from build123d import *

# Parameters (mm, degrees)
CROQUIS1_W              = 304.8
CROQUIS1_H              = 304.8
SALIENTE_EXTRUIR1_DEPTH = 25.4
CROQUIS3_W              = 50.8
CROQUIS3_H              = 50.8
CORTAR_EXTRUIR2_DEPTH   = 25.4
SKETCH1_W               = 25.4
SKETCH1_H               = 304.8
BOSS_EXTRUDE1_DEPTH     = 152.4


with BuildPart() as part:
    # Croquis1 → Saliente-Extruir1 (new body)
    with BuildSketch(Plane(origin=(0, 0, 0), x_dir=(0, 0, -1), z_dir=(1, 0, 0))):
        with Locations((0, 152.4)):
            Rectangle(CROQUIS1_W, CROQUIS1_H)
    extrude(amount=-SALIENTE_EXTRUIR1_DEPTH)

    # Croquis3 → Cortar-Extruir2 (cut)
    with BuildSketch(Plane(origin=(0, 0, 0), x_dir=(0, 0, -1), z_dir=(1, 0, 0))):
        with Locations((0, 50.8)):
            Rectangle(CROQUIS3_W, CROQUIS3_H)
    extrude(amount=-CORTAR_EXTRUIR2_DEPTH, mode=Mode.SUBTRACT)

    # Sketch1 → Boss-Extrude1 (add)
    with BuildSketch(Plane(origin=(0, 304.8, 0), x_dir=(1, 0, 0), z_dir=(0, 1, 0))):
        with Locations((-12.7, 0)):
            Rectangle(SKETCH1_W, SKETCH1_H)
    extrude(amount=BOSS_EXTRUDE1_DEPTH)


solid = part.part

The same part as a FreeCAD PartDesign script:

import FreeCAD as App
import Part
import Sketcher
from FreeCAD import Vector
Q = App.Units.Quantity

doc = App.newDocument("Part")
body = doc.addObject("PartDesign::Body", "Body")

sketch1 = doc.addObject("Sketcher::SketchObject", "Sketch")
body.addObject(sketch1)
sketch1.AttachmentSupport = (doc.YZ_Plane, [""])
sketch1.MapMode = "FlatFace"
sketch1.addGeometry(Part.LineSegment(Vector(305, 152, 0), Vector(0, 152, 0)), False)
sketch1.addGeometry(Part.LineSegment(Vector(0, 152, 0), Vector(0, -152, 0)), False)
sketch1.addGeometry(Part.LineSegment(Vector(0, -152, 0), Vector(305, -152, 0)), False)
sketch1.addGeometry(Part.LineSegment(Vector(305, -152, 0), Vector(305, 152, 0)), False)
sketch1.addConstraint(Sketcher.Constraint("Coincident", 0, 2, 1, 1))
sketch1.addConstraint(Sketcher.Constraint("Coincident", 1, 2, 2, 1))
sketch1.addConstraint(Sketcher.Constraint("Coincident", 2, 2, 3, 1))
sketch1.addConstraint(Sketcher.Constraint("Coincident", 3, 2, 0, 1))
sketch1.addConstraint(Sketcher.Constraint("Horizontal", 0))
sketch1.addConstraint(Sketcher.Constraint("Vertical", 1))
sketch1.addConstraint(Sketcher.Constraint("Horizontal", 2))
sketch1.addConstraint(Sketcher.Constraint("Vertical", 3))
sketch1.addConstraint(Sketcher.Constraint("Symmetric", 0, 2, 1, 2, -1, 1))
sketch1.addConstraint(Sketcher.Constraint("Equal", 2, 1))
sketch1.addConstraint(Sketcher.Constraint("DistanceX", 0, 2, 0, 1, Q("12 in")))
pad1 = doc.addObject("PartDesign::Pad", "Pad")
body.addObject(pad1)
pad1.Profile = sketch1
pad1.Length = Q("1 in")
pad1.Reversed = True

sketch2 = doc.addObject("Sketcher::SketchObject", "Sketch001")
body.addObject(sketch2)
sketch2.AttachmentSupport = (doc.YZ_Plane, [""])
sketch2.MapMode = "FlatFace"
sketch2.addGeometry(Part.LineSegment(Vector(76, 25, 0), Vector(25, 25, 0)), False)
sketch2.addGeometry(Part.LineSegment(Vector(25, 25, 0), Vector(25, -25, 0)), False)
sketch2.addGeometry(Part.LineSegment(Vector(25, -25, 0), Vector(76, -25, 0)), False)
sketch2.addGeometry(Part.LineSegment(Vector(76, -25, 0), Vector(76, 25, 0)), False)
sketch2.addConstraint(Sketcher.Constraint("Coincident", 0, 2, 1, 1))
sketch2.addConstraint(Sketcher.Constraint("Coincident", 1, 2, 2, 1))
sketch2.addConstraint(Sketcher.Constraint("Coincident", 2, 2, 3, 1))
sketch2.addConstraint(Sketcher.Constraint("Coincident", 3, 2, 0, 1))
sketch2.addConstraint(Sketcher.Constraint("Horizontal", 0))
sketch2.addConstraint(Sketcher.Constraint("Vertical", 1))
sketch2.addConstraint(Sketcher.Constraint("Horizontal", 2))
sketch2.addConstraint(Sketcher.Constraint("Vertical", 3))
sketch2.addConstraint(Sketcher.Constraint("Equal", 2, 1))
sketch2.addConstraint(Sketcher.Constraint("DistanceX", 0, 2, 0, 1, Q("2 in")))
sketch2.addConstraint(Sketcher.Constraint("DistanceX", -1, 1, 0, 2, Q("1 in")))
sketch2.addConstraint(Sketcher.Constraint("DistanceY", -1, 1, 0, 2, Q("1 in")))
pocket1 = doc.addObject("PartDesign::Pocket", "Pocket")
body.addObject(pocket1)
pocket1.Profile = sketch2
pocket1.Length = Q("1 in")

sketch3 = doc.addObject("Sketcher::SketchObject", "Sketch002")
body.addObject(sketch3)
sketch3.AttachmentSupport = (doc.XZ_Plane, [""])
sketch3.MapMode = "FlatFace"
sketch3.AttachmentOffset = App.Placement(Vector(0, 0, -12 * 25.4), App.Rotation())
sketch3.addGeometry(Part.LineSegment(Vector(-25, -152, 0), Vector(-25, 152, 0)), False)
sketch3.addGeometry(Part.LineSegment(Vector(-25, 152, 0), Vector(0, 152, 0)), False)
sketch3.addGeometry(Part.LineSegment(Vector(0, 152, 0), Vector(0, -152, 0)), False)
sketch3.addGeometry(Part.LineSegment(Vector(0, -152, 0), Vector(-25, -152, 0)), False)
sketch3.addConstraint(Sketcher.Constraint("Coincident", 0, 2, 1, 1))
sketch3.addConstraint(Sketcher.Constraint("Coincident", 1, 2, 2, 1))
sketch3.addConstraint(Sketcher.Constraint("Coincident", 2, 2, 3, 1))
sketch3.addConstraint(Sketcher.Constraint("Coincident", 3, 2, 0, 1))
sketch3.addConstraint(Sketcher.Constraint("Vertical", 0))
sketch3.addConstraint(Sketcher.Constraint("Horizontal", 1))
sketch3.addConstraint(Sketcher.Constraint("Vertical", 2))
sketch3.addConstraint(Sketcher.Constraint("Horizontal", 3))
sketch3.addConstraint(Sketcher.Constraint("Symmetric", 1, 2, 2, 2, -1, 1))
sketch3.addConstraint(Sketcher.Constraint("DistanceX", 1, 1, 1, 2, Q("1 in")))
sketch3.addConstraint(Sketcher.Constraint("DistanceY", 0, 1, 0, 2, Q("12 in")))
pad2 = doc.addObject("PartDesign::Pad", "Pad001")
body.addObject(pad2)
pad2.Profile = sketch3
pad2.Length = Q("6 in")
pad2.Reversed = True

doc.recompute()
